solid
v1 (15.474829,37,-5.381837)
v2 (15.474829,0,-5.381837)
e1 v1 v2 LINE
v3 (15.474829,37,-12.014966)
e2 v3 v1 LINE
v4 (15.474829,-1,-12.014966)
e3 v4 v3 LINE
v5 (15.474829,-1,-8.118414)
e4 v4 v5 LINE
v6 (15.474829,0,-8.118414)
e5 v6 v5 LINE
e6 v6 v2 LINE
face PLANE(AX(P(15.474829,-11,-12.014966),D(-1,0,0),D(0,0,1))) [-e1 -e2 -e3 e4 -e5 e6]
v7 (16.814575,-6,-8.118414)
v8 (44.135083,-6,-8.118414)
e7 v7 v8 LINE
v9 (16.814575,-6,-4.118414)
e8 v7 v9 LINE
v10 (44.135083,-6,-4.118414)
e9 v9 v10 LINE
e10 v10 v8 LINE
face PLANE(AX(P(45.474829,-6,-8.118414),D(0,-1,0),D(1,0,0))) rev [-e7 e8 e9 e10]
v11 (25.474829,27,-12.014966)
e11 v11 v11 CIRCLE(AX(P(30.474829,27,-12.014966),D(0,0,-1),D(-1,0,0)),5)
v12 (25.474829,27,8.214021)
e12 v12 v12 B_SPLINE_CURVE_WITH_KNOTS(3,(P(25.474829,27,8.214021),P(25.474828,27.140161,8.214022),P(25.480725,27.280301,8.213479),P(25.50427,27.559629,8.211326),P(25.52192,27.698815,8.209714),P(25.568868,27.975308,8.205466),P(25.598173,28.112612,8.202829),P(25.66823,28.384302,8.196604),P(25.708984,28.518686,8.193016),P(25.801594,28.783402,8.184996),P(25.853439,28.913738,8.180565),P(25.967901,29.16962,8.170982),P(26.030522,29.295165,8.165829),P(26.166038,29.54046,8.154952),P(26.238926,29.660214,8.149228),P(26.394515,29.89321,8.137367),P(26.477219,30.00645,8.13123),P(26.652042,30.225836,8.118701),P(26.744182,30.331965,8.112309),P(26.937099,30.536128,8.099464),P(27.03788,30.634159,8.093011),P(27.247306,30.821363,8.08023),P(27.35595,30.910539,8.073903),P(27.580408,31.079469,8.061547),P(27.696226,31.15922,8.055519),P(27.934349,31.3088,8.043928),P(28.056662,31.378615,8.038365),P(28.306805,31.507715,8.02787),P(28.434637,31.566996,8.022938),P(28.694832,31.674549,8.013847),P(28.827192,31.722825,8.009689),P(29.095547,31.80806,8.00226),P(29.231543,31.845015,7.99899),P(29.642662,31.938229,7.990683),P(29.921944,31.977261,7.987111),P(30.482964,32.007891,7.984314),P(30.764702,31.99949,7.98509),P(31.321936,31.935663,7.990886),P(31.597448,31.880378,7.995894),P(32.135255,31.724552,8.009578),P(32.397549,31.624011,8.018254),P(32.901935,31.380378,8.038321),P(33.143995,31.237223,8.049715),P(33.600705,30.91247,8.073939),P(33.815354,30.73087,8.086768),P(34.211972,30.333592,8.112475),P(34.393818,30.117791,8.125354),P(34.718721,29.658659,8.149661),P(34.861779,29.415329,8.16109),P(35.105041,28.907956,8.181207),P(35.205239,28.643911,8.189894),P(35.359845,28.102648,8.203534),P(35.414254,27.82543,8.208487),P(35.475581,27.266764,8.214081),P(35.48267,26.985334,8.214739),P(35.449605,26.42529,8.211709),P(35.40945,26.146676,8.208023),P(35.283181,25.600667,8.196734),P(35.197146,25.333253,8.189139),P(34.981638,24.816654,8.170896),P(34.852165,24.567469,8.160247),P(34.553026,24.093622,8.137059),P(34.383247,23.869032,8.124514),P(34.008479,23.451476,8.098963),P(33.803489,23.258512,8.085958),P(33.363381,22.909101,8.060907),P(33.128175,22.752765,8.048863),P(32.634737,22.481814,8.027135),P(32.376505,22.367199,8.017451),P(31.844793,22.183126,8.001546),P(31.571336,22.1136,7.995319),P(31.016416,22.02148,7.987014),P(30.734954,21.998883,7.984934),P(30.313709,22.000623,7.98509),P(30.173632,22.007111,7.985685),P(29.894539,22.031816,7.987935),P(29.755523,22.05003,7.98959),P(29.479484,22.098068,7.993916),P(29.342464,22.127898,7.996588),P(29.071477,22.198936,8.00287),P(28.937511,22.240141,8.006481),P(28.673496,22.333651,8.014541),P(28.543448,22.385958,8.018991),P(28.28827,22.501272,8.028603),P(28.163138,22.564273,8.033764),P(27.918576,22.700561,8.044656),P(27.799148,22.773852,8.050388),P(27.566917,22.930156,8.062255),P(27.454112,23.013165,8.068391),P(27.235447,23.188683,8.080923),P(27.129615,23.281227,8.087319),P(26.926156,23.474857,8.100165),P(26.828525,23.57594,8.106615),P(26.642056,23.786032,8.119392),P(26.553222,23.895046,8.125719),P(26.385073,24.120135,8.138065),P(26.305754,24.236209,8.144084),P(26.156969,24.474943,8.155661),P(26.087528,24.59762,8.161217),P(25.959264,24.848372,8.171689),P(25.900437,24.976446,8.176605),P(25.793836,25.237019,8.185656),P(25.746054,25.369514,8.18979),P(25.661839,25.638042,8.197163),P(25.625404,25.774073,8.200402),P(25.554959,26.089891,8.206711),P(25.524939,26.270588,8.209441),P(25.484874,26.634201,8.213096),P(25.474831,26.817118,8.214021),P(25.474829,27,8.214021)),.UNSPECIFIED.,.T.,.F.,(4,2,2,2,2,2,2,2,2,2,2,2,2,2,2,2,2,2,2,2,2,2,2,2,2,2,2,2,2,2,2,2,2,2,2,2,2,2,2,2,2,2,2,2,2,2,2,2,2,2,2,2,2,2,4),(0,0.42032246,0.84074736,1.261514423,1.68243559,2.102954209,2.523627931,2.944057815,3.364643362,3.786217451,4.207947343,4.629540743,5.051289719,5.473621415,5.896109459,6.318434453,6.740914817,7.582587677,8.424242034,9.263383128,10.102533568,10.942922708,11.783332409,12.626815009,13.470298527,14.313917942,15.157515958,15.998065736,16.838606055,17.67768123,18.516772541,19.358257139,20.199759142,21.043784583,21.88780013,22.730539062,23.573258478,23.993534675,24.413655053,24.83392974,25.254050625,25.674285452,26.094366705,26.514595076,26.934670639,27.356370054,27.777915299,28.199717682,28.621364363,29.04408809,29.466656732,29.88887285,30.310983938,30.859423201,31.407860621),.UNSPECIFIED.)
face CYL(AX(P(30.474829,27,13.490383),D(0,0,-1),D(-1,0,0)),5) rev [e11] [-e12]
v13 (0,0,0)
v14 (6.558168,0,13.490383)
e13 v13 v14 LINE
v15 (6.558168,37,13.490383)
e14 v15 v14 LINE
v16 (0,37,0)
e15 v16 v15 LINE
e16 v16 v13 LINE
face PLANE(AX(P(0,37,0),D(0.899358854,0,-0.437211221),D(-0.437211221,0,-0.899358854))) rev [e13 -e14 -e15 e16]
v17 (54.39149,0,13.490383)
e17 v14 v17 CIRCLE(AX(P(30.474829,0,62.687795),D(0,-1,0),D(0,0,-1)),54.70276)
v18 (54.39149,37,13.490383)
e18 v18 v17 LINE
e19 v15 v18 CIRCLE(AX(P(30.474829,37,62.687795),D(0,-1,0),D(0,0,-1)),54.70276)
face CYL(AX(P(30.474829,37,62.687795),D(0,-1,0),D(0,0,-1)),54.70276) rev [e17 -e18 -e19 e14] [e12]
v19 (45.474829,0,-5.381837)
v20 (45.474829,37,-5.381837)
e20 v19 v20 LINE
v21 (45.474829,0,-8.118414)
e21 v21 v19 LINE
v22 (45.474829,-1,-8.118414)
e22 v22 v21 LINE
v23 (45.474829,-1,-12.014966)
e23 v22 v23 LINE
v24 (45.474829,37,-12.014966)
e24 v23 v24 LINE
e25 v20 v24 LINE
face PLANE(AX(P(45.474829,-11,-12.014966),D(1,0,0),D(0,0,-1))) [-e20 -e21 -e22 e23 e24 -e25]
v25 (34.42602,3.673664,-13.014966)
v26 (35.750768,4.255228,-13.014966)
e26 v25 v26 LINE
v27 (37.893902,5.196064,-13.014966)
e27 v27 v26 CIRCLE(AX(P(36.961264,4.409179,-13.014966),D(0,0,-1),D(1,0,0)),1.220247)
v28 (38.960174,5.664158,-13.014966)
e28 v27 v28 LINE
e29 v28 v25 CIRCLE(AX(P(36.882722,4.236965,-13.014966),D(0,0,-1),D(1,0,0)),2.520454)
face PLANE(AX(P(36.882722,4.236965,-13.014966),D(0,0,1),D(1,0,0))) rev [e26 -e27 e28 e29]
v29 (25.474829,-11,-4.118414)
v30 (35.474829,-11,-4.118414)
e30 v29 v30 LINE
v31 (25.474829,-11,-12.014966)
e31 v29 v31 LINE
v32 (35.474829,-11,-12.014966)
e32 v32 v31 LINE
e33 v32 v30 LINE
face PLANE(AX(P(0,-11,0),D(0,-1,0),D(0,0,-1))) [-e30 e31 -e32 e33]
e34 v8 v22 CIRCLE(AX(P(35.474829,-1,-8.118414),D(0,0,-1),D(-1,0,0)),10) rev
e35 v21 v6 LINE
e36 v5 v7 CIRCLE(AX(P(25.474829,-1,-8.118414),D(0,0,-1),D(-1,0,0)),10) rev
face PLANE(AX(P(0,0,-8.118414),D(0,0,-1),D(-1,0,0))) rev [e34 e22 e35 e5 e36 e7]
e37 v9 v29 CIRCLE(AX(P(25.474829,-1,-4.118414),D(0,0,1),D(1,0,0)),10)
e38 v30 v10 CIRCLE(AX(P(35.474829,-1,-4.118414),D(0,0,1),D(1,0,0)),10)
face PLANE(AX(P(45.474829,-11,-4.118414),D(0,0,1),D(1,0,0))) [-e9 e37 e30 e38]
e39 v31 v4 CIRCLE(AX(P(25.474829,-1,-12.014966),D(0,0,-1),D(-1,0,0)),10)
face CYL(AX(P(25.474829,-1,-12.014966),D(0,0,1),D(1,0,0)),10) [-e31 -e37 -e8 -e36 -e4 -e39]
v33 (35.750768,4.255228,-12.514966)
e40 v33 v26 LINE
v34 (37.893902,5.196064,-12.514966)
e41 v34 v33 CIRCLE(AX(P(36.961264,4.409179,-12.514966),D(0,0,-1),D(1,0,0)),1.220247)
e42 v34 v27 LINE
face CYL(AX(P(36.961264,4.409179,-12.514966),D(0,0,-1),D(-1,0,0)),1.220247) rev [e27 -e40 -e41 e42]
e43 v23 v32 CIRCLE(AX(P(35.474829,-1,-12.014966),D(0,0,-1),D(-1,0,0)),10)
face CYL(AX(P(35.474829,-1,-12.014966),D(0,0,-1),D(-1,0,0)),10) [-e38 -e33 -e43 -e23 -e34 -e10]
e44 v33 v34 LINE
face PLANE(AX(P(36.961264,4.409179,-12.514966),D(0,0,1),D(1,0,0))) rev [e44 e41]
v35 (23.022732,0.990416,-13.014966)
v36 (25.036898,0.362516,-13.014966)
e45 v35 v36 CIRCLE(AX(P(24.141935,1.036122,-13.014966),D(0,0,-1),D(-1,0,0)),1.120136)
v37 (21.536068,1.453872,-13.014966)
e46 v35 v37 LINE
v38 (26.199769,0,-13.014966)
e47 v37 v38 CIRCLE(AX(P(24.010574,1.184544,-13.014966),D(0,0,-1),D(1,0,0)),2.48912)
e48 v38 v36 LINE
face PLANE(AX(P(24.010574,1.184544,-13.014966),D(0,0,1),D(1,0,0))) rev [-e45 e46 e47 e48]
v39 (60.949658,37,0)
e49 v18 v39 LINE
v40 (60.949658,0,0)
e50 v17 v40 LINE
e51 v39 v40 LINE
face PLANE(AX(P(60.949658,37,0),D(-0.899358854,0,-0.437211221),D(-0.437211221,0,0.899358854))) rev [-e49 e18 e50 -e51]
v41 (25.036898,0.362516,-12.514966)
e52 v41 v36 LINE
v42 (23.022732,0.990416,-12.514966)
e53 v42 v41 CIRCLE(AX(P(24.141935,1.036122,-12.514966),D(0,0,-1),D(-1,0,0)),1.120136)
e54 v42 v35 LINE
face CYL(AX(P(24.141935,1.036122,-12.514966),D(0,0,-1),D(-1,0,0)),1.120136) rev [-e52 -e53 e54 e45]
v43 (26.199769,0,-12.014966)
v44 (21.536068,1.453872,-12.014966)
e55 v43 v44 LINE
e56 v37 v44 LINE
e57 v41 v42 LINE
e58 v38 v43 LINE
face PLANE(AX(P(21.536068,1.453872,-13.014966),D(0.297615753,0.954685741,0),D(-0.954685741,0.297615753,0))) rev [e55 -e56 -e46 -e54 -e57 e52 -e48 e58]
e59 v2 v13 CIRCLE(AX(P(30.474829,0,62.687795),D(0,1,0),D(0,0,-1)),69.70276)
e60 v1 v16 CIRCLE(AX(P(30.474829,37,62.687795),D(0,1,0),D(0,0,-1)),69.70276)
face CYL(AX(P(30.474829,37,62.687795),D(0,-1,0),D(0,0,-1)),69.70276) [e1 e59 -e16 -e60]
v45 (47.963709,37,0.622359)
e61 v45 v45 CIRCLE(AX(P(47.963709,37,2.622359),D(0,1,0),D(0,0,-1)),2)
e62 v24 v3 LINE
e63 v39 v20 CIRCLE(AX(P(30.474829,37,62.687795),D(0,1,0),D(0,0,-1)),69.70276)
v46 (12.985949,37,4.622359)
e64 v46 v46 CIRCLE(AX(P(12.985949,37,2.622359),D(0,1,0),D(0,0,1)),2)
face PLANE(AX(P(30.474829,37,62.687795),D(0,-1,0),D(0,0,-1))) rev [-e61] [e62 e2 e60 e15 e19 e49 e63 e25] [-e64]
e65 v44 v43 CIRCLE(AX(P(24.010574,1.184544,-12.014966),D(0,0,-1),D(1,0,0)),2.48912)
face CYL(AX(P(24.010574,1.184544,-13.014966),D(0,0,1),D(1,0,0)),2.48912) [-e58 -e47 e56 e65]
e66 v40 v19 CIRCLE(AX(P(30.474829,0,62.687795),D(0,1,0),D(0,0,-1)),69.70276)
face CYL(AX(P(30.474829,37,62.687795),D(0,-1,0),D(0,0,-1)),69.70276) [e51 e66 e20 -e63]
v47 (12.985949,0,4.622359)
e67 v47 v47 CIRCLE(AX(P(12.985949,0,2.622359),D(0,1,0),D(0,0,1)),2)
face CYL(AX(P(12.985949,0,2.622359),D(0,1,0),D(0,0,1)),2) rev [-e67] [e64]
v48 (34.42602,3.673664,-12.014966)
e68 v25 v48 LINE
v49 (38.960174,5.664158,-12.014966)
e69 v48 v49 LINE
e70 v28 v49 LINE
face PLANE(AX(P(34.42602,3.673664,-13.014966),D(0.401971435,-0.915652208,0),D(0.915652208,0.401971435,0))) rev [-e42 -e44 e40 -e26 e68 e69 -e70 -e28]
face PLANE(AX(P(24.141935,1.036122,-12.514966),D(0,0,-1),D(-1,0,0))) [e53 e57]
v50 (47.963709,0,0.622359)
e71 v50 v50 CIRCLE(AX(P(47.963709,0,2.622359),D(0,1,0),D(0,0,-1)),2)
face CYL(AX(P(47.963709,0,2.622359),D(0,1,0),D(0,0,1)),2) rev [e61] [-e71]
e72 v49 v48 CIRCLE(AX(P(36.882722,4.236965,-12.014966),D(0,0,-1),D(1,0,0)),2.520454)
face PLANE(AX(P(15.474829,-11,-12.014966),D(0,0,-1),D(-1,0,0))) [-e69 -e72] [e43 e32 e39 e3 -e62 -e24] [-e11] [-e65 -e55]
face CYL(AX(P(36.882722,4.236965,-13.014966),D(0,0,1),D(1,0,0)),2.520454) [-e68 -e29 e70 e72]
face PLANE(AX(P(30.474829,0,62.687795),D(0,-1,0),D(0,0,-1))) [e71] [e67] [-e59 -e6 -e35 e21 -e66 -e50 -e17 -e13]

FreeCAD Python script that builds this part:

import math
import FreeCAD as App
import Part
import Sketcher
from FreeCAD import Vector
Q = App.Units.Quantity


def edges_at(feature, points):
    """Names of the edges that pass closest to the given points."""
    edges = feature.Shape.Edges
    near = lambda p: min(range(len(edges)), key=lambda i: edges[i].distToShape(Part.Vertex(*p))[0])
    return sorted({f"Edge{near(p) + 1}" for p in points})


def add_polygon(sketch, points):
    """Adds a closed chain of lines whose ends are joined by coincident constraints."""
    first, n = sketch.GeometryCount, len(points)
    for a, b in zip(points, points[1:] + points[:1]):
        sketch.addGeometry(Part.LineSegment(App.Vector(*a, 0), App.Vector(*b, 0)), False)
    for i in range(n):
        sketch.addConstraint(Sketcher.Constraint("Coincident", first + i, 2, first + (i + 1) % n, 1))

doc = App.newDocument("Part")
body = doc.addObject("PartDesign::Body", "Body")

# Sketch on XZ plane
sketch1 = doc.addObject("Sketcher::SketchObject", "Sketch")
body.addObject(sketch1)
sketch1.AttachmentSupport = (doc.XZ_Plane, [""])
sketch1.MapMode = "FlatFace"
sketch1.addGeometry(Part.LineSegment(Vector(0, 0, 0), Vector(7, 13, 0)), False)
sketch1.addGeometry(Part.ArcOfCircle(Part.Circle(Vector(30, 63, 0), Vector(0, 0, 1), 55), math.radians(-116), math.radians(-64)), False)
sketch1.addGeometry(Part.LineSegment(Vector(54, 13, 0), Vector(61, 0, 0)), False)
sketch1.addGeometry(Part.ArcOfCircle(Part.Circle(Vector(30, 63, 0), Vector(0, 0, 1), 70), math.radians(-116), math.radians(-64)), False)
sketch1.addConstraint(Sketcher.Constraint("Coincident", 0, 2, 1, 1))
sketch1.addConstraint(Sketcher.Constraint("Coincident", 1, 2, 2, 1))
sketch1.addConstraint(Sketcher.Constraint("Coincident", 2, 2, 3, 2))
sketch1.addConstraint(Sketcher.Constraint("Coincident", 3, 1, 0, 1))
sketch1.addConstraint(Sketcher.Constraint("Coincident", 3, 1, -1, 1))
sketch1.addConstraint(Sketcher.Constraint("Coincident", 3, 3, 1, 3))
sketch1.addConstraint(Sketcher.Constraint("PointOnObject", 2, 2, -1))
sketch1.addConstraint(Sketcher.Constraint("Horizontal", 0, 2, 1, 2))
sketch1.addConstraint(Sketcher.Constraint("Distance", 0, Q("15 mm")))
sketch1.addConstraint(Sketcher.Constraint("Radius", 1, Q("54.70276 mm")))
sketch1.addConstraint(Sketcher.Constraint("DistanceX", -1, 1, 1, 3, Q("30.474829 mm")))
sketch1.addConstraint(Sketcher.Constraint("DistanceX", -1, 1, 0, 2, Q("6.558168 mm")))
pad1 = doc.addObject("PartDesign::Pad", "Pad")
body.addObject(pad1)
pad1.Profile = sketch1
pad1.Length = 37
pad1.Reversed = True

# Sketch on XZ plane
sketch2 = doc.addObject("Sketcher::SketchObject", "Sketch001")
body.addObject(sketch2)
sketch2.AttachmentSupport = (doc.XZ_Plane, [""])
sketch2.MapMode = "FlatFace"
sketch2.AttachmentOffset = App.Placement(Vector(0, 0, -37), App.Rotation())
sketch2.addGeometry(Part.Circle(Vector(13, 2.6, 0), Vector(0, 0, 1), 2), False)
sketch2.addGeometry(Part.Circle(Vector(48, 2.6, 0), Vector(0, 0, 1), 2), False)
sketch2.addConstraint(Sketcher.Constraint("Equal", 0, 1))
sketch2.addConstraint(Sketcher.Constraint("Horizontal", 0, 3, 1, 3))
sketch2.addConstraint(Sketcher.Constraint("Diameter", 0, Q("4 mm")))
sketch2.addConstraint(Sketcher.Constraint("DistanceX", -1, 1, 0, 3, Q("12.985949 mm")))
sketch2.addConstraint(Sketcher.Constraint("DistanceY", -1, 1, 0, 3, Q("2.622359 mm")))
sketch2.addConstraint(Sketcher.Constraint("DistanceX", -1, 1, 1, 3, Q("47.963709 mm")))
pocket1 = doc.addObject("PartDesign::Pocket", "Pocket")
body.addObject(pocket1)
pocket1.Profile = sketch2
pocket1.Type = "ThroughAll"
pocket1.Reversed = True

# Sketch on XZ plane
sketch3 = doc.addObject("Sketcher::SketchObject", "Sketch002")
body.addObject(sketch3)
sketch3.AttachmentSupport = (doc.XZ_Plane, [""])
sketch3.MapMode = "FlatFace"
sketch3.AttachmentOffset = App.Placement(Vector(0, 0, -37), App.Rotation())
add_polygon(sketch3, [(15, -12), (15, -4), (45, -4), (45, -12)])  # lines 0-3
sketch3.addConstraint(Sketcher.Constraint("Vertical", 0))
sketch3.addConstraint(Sketcher.Constraint("Horizontal", 1))
sketch3.addConstraint(Sketcher.Constraint("Vertical", 2))
sketch3.addConstraint(Sketcher.Constraint("Horizontal", 3))
sketch3.addConstraint(Sketcher.Constraint("DistanceX", 1, 1, 1, 2, Q("30 mm")))
sketch3.addConstraint(Sketcher.Constraint("DistanceY", 0, 1, 0, 2, Q("7.896551 mm")))
sketch3.addConstraint(Sketcher.Constraint("DistanceX", -1, 1, 0, 2, Q("15.474829 mm")))
sketch3.addConstraint(Sketcher.Constraint("DistanceY", 0, 2, -1, 1, Q("4.118414 mm")))
pad2 = doc.addObject("PartDesign::Pad", "Pad001")
body.addObject(pad2)
pad2.Profile = sketch3
pad2.Length = 48

# Sketch on XY plane
sketch4 = doc.addObject("Sketcher::SketchObject", "Sketch003")
body.addObject(sketch4)
sketch4.AttachmentSupport = (doc.XY_Plane, [""])
sketch4.MapMode = "FlatFace"
sketch4.AttachmentOffset = App.Placement(Vector(0, 0, -4.118414), App.Rotation())
add_polygon(sketch4, [(15, 0), (15, -6), (45, -6), (45, 0)])  # lines 0-3
sketch4.addConstraint(Sketcher.Constraint("Vertical", 0))
sketch4.addConstraint(Sketcher.Constraint("Horizontal", 1))
sketch4.addConstraint(Sketcher.Constraint("Vertical", 2))
sketch4.addConstraint(Sketcher.Constraint("Horizontal", 3))
sketch4.addConstraint(Sketcher.Constraint("PointOnObject", 2, 2, -1))
sketch4.addConstraint(Sketcher.Constraint("DistanceX", 1, 1, 1, 2, Q("30 mm")))
sketch4.addConstraint(Sketcher.Constraint("DistanceY", 0, 2, 0, 1, Q("6 mm")))
sketch4.addConstraint(Sketcher.Constraint("DistanceX", -1, 1, 0, 2, Q("15.474829 mm")))
pocket2 = doc.addObject("PartDesign::Pocket", "Pocket001")
body.addObject(pocket2)
pocket2.Profile = sketch4
pocket2.Length = 4
doc.recompute()

fillet = doc.addObject("PartDesign::Fillet", "Fillet")
body.addObject(fillet)
fillet.Base = (pocket2, edges_at(pocket2, [(15.475, -11, -8.067), (45.475, -11, -8.067)]))
fillet.Radius = 10

# Sketch on XY plane
sketch5 = doc.addObject("Sketcher::SketchObject", "Sketch004")
body.addObject(sketch5)
sketch5.AttachmentSupport = (doc.XY_Plane, [""])
sketch5.MapMode = "FlatFace"
sketch5.AttachmentOffset = App.Placement(Vector(0, 0, -12.014966), App.Rotation())
sketch5.addGeometry(Part.Circle(Vector(30, 27, 0), Vector(0, 0, 1), 5), False)
sketch5.addConstraint(Sketcher.Constraint("Diameter", 0, Q("10 mm")))
sketch5.addConstraint(Sketcher.Constraint("DistanceY", -1, 1, 0, 3, Q("27 mm")))
sketch5.addConstraint(Sketcher.Constraint("DistanceX", -1, 1, 0, 3, Q("30.474829 mm")))
pocket3 = doc.addObject("PartDesign::Pocket", "Pocket002")
body.addObject(pocket3)
pocket3.Profile = sketch5
pocket3.Type = "ThroughAll"
pocket3.Reversed = True

# Sketch on XY plane
sketch6 = doc.addObject("Sketcher::SketchObject", "Sketch005")
body.addObject(sketch6)
sketch6.AttachmentSupport = (doc.XY_Plane, [""])
sketch6.MapMode = "FlatFace"
sketch6.AttachmentOffset = App.Placement(Vector(0, 0, -12.014966), App.Rotation())
sketch6.addGeometry(Part.LineSegment(Vector(26.2, 0, 0), Vector(21.5, 1.5, 0)), False)
sketch6.addGeometry(Part.ArcOfCircle(Part.Circle(Vector(24, 1.2, 0), Vector(0, 0, 1), 2.5), math.radians(-28), math.radians(174)), False)
sketch6.addGeometry(Part.LineSegment(Vector(34.4, 3.7, 0), Vector(39, 5.7, 0)), False)
sketch6.addGeometry(Part.ArcOfCircle(Part.Circle(Vector(36.9, 4.2, 0), Vector(0, 0, 1), 2.5), math.radians(-167), math.radians(34)), False)
sketch6.addConstraint(Sketcher.Constraint("Coincident", 0, 1, 1, 1))
sketch6.addConstraint(Sketcher.Constraint("Coincident", 1, 2, 0, 2))
sketch6.addConstraint(Sketcher.Constraint("Coincident", 2, 1, 3, 1))
sketch6.addConstraint(Sketcher.Constraint("Coincident", 3, 2, 2, 2))
sketch6.addConstraint(Sketcher.Constraint("PointOnObject", 0, 1, -1))
sketch6.addConstraint(Sketcher.Constraint("Radius", 1, Q("2.48912 mm")))
sketch6.addConstraint(Sketcher.Constraint("Radius", 3, Q("2.520454 mm")))
sketch6.addConstraint(Sketcher.Constraint("DistanceX", 1, 2, 0, 1, Q("4.663701 mm")))
sketch6.addConstraint(Sketcher.Constraint("DistanceX", 2, 1, 3, 3, Q("2.456701 mm")))
sketch6.addConstraint(Sketcher.Constraint("DistanceX", 1, 3, 3, 2, Q("14.9496 mm")))
sketch6.addConstraint(Sketcher.Constraint("Distance", 2, Q("4.95183 mm")))
sketch6.addConstraint(Sketcher.Constraint("DistanceX", -1, 1, 3, 3, Q("36.882722 mm")))
sketch6.addConstraint(Sketcher.Constraint("DistanceX", -1, 1, 0, 1, Q("26.199769 mm")))
sketch6.addConstraint(Sketcher.Constraint("DistanceY", -1, 1, 3, 2, Q("5.664158 mm")))
pad3 = doc.addObject("PartDesign::Pad", "Pad002")
body.addObject(pad3)
pad3.Profile = sketch6
pad3.Length = 1
pad3.Reversed = True

# Sketch on XY plane
sketch7 = doc.addObject("Sketcher::SketchObject", "Sketch006")
body.addObject(sketch7)
sketch7.AttachmentSupport = (doc.XY_Plane, [""])
sketch7.MapMode = "FlatFace"
sketch7.AttachmentOffset = App.Placement(Vector(0, 0, -13.014966), App.Rotation())
sketch7.addGeometry(Part.LineSegment(Vector(25, 0.4, 0), Vector(23, 1, 0)), False)
sketch7.addGeometry(Part.ArcOfCircle(Part.Circle(Vector(24.1, 1, 0), Vector(0, 0, 1), 1.1), math.radians(-37), math.radians(182)), False)
sketch7.addGeometry(Part.LineSegment(Vector(35.8, 4.3, 0), Vector(37.9, 5.2, 0)), False)
sketch7.addGeometry(Part.ArcOfCircle(Part.Circle(Vector(37, 4.4, 0), Vector(0, 0, 1), 1.2), math.radians(-173), math.radians(40)), False)
sketch7.addConstraint(Sketcher.Constraint("Coincident", 0, 1, 1, 1))
sketch7.addConstraint(Sketcher.Constraint("Coincident", 1, 2, 0, 2))
sketch7.addConstraint(Sketcher.Constraint("Coincident", 2, 1, 3, 1))
sketch7.addConstraint(Sketcher.Constraint("Coincident", 3, 2, 2, 2))
sketch7.addConstraint(Sketcher.Constraint("Radius", 1, Q("1.120136 mm")))
sketch7.addConstraint(Sketcher.Constraint("Radius", 3, Q("1.220247 mm")))
sketch7.addConstraint(Sketcher.Constraint("DistanceY", 0, 1, 1, 2, Q("0.6279 mm")))
sketch7.addConstraint(Sketcher.Constraint("Distance", 0, Q("2.109769 mm")))
sketch7.addConstraint(Sketcher.Constraint("DistanceY", -1, 1, 3, 3, Q("4.409179 mm")))
sketch7.addConstraint(Sketcher.Constraint("DistanceX", -1, 1, 1, 2, Q("23.022732 mm")))
sketch7.addConstraint(Sketcher.Constraint("DistanceY", -1, 1, 2, 1, Q("4.255228 mm")))
sketch7.addConstraint(Sketcher.Constraint("DistanceX", 1, 3, 3, 3, Q("12.819329 mm")))
sketch7.addConstraint(Sketcher.Constraint("DistanceY", 0, 1, 2, 1, Q("3.892712 mm")))
sketch7.addConstraint(Sketcher.Constraint("DistanceX", 3, 3, 3, 2, Q("0.932638 mm")))
pocket4 = doc.addObject("PartDesign::Pocket", "Pocket003")
body.addObject(pocket4)
pocket4.Profile = sketch7
pocket4.Length = 0.5
pocket4.Reversed = True

doc.recompute()
